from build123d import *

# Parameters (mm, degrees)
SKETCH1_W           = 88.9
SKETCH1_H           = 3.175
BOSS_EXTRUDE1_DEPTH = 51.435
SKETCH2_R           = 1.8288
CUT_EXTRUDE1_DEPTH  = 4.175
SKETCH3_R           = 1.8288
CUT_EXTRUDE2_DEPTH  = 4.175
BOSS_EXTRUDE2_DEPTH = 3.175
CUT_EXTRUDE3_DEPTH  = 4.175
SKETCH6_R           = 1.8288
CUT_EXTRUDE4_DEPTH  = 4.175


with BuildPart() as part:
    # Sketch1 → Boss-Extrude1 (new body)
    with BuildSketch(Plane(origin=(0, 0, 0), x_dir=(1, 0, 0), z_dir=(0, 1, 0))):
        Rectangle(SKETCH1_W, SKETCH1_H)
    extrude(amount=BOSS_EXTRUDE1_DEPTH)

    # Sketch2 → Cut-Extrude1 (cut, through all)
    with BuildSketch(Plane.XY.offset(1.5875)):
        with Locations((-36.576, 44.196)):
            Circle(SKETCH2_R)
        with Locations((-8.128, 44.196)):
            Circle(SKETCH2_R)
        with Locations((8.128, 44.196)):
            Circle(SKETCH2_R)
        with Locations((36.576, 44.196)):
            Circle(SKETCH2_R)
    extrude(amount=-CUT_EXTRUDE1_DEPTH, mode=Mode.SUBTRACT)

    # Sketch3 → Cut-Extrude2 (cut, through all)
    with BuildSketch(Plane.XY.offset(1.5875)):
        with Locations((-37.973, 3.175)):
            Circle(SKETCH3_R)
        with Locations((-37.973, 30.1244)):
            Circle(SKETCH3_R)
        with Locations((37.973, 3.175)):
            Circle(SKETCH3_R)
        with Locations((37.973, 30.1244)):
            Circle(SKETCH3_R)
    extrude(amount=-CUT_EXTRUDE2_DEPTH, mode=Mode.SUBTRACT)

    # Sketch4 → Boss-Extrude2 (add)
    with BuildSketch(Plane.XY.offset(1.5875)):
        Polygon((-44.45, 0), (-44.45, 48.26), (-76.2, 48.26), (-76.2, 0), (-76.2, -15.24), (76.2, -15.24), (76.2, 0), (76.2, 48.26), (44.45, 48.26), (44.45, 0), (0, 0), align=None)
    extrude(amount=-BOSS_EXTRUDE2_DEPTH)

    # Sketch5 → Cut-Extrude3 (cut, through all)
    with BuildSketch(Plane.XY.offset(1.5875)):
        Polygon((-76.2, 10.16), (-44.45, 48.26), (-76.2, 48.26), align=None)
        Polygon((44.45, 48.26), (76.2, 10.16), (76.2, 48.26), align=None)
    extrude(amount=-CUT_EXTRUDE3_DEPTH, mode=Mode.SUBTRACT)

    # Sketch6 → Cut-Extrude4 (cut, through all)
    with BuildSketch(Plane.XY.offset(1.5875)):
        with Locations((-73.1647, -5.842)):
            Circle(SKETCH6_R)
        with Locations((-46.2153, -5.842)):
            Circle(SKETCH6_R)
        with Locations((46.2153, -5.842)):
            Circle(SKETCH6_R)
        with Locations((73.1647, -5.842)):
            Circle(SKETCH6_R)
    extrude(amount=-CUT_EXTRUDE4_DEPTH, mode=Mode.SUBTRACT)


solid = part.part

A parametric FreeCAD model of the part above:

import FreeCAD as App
import Part
import Sketcher
from FreeCAD import Vector
Q = App.Units.Quantity

doc = App.newDocument("Part")
params = doc.addObject("Spreadsheet::Sheet", "Params")
for row, (alias, value) in enumerate([
    ("sketch1_width", "3.5 in"),
    ("sketch1_height", "0.125 in"),
    ("pad1_length", "2.025 in"),
    ("sketch2_diameter", "0.144 in"),
    ("sketch3_diameter", "0.144 in"),
    ("sketch4_width", "6 in"),
    ("sketch4_width2", "3.5 in"),
    ("sketch4_height", "1.9 in"),
    ("sketch4_height2", "2.5 in"),
    ("pad2_length", "0.125 in"),
    ("sketch5_height", "1.5 in"),
    ("sketch5_width", "1.25 in"),
    ("sketch6_diameter", "0.144 in"),
], start=1):
    params.set(f"A{row}", alias)
    params.set(f"B{row}", "=" + value)
    params.setAlias(f"B{row}", alias)

body = doc.addObject("PartDesign::Body", "Body")

# Sketch on XZ plane
sketch1 = doc.addObject("Sketcher::SketchObject", "Sketch")
body.addObject(sketch1)
sketch1.AttachmentSupport = (doc.XZ_Plane, [""])
sketch1.MapMode = "FlatFace"
sketch1.addGeometry(Part.LineSegment(Vector(-44.5, -1.6, 0), Vector(-44.5, 1.6, 0)), False)
sketch1.addGeometry(Part.LineSegment(Vector(-44.5, 1.6, 0), Vector(44.5, 1.6, 0)), False)
sketch1.addGeometry(Part.LineSegment(Vector(44.5, 1.6, 0), Vector(44.5, -1.6, 0)), False)
sketch1.addGeometry(Part.LineSegment(Vector(44.5, -1.6, 0), Vector(-44.5, -1.6, 0)), False)
sketch1.addConstraint(Sketcher.Constraint("Coincident", 0, 2, 1, 1))
sketch1.addConstraint(Sketcher.Constraint("Coincident", 1, 2, 2, 1))
sketch1.addConstraint(Sketcher.Constraint("Coincident", 2, 2, 3, 1))
sketch1.addConstraint(Sketcher.Constraint("Coincident", 3, 2, 0, 1))
sketch1.addConstraint(Sketcher.Constraint("Vertical", 0))
sketch1.addConstraint(Sketcher.Constraint("Horizontal", 1))
sketch1.addConstraint(Sketcher.Constraint("Vertical", 2))
sketch1.addConstraint(Sketcher.Constraint("Horizontal", 3))
sketch1.addConstraint(Sketcher.Constraint("Symmetric", 0, 2, 2, 2, -1, 1))
sketch1.addConstraint(Sketcher.Constraint("DistanceX", 1, 1, 1, 2, Q("3.5 in")))
sketch1.addConstraint(Sketcher.Constraint("DistanceY", 0, 1, 0, 2, Q("0.125 in")))
sketch1.setExpression("Constraints[9]", "Params.sketch1_width")
sketch1.setExpression("Constraints[10]", "Params.sketch1_height")
pad1 = doc.addObject("PartDesign::Pad", "Pad")
body.addObject(pad1)
pad1.Profile = sketch1
pad1.setExpression("Length", "Params.pad1_length")
pad1.Reversed = True

# Sketch on XY plane
sketch2 = doc.addObject("Sketcher::SketchObject", "Sketch001")
body.addObject(sketch2)
sketch2.AttachmentSupport = (doc.XY_Plane, [""])
sketch2.MapMode = "FlatFace"
sketch2.AttachmentOffset = App.Placement(Vector(0, 0, 0.0625 * 25.4), App.Rotation())
sketch2.addGeometry(Part.Circle(Vector(-36.6, 44.2, 0), Vector(0, 0, 1), 1.8), False)
sketch2.addGeometry(Part.Circle(Vector(-8.1, 44.2, 0), Vector(0, 0, 1), 1.8), False)
sketch2.addGeometry(Part.Circle(Vector(8.1, 44.2, 0), Vector(0, 0, 1), 1.8), False)
sketch2.addGeometry(Part.Circle(Vector(36.6, 44.2, 0), Vector(0, 0, 1), 1.8), False)
sketch2.addConstraint(Sketcher.Constraint("Equal", 0, 1))
sketch2.addConstraint(Sketcher.Constraint("Equal", 1, 2))
sketch2.addConstraint(Sketcher.Constraint("Equal", 2, 3))
sketch2.addConstraint(Sketcher.Constraint("Symmetric", 1, 3, 2, 3, -2))
sketch2.addConstraint(Sketcher.Constraint("Symmetric", 0, 3, 3, 3, -2))
sketch2.addConstraint(Sketcher.Constraint("Horizontal", 0, 3, 1, 3))
sketch2.addConstraint(Sketcher.Constraint("Diameter", 0, Q("0.144 in")))
sketch2.addConstraint(Sketcher.Constraint("DistanceX", 0, 3, -1, 1, Q("1.44 in")))
sketch2.addConstraint(Sketcher.Constraint("DistanceY", -1, 1, 0, 3, Q("1.74 in")))
sketch2.addConstraint(Sketcher.Constraint("DistanceX", 1, 3, -1, 1, Q("0.32 in")))
sketch2.setExpression("Constraints[6]", "Params.sketch2_diameter")
pocket1 = doc.addObject("PartDesign::Pocket", "Pocket")
body.addObject(pocket1)
pocket1.Profile = sketch2
pocket1.Type = "ThroughAll"

# Sketch on XY plane
sketch3 = doc.addObject("Sketcher::SketchObject", "Sketch002")
body.addObject(sketch3)
sketch3.AttachmentSupport = (doc.XY_Plane, [""])
sketch3.MapMode = "FlatFace"
sketch3.AttachmentOffset = App.Placement(Vector(0, 0, 0.0625 * 25.4), App.Rotation())
sketch3.addGeometry(Part.Circle(Vector(-38, 3.2, 0), Vector(0, 0, 1), 1.8), False)
sketch3.addGeometry(Part.Circle(Vector(-38, 30.1, 0), Vector(0, 0, 1), 1.8), False)
sketch3.addGeometry(Part.Circle(Vector(38, 3.2, 0), Vector(0, 0, 1), 1.8), False)
sketch3.addGeometry(Part.Circle(Vector(38, 30.1, 0), Vector(0, 0, 1), 1.8), False)
sketch3.addConstraint(Sketcher.Constraint("Equal", 0, 1))
sketch3.addConstraint(Sketcher.Constraint("Equal", 1, 2))
sketch3.addConstraint(Sketcher.Constraint("Equal", 2, 3))
sketch3.addConstraint(Sketcher.Constraint("Symmetric", 0, 3, 2, 3, -2))
sketch3.addConstraint(Sketcher.Constraint("Symmetric", 1, 3, 3, 3, -2))
sketch3.addConstraint(Sketcher.Constraint("Vertical", 0, 3, 1, 3))
sketch3.addConstraint(Sketcher.Constraint("Diameter", 0, Q("0.144 in")))
sketch3.addConstraint(Sketcher.Constraint("DistanceX", 0, 3, 2, 3, Q("2.99 in")))
sketch3.addConstraint(Sketcher.Constraint("DistanceY", -1, 1, 0, 3, Q("0.125 in")))
sketch3.addConstraint(Sketcher.Constraint("DistanceY", -1, 1, 1, 3, Q("1.186 in")))
sketch3.setExpression("Constraints[6]", "Params.sketch3_diameter")
pocket2 = doc.addObject("PartDesign::Pocket", "Pocket001")
body.addObject(pocket2)
pocket2.Profile = sketch3
pocket2.Type = "ThroughAll"

# Sketch on XY plane
sketch4 = doc.addObject("Sketcher::SketchObject", "Sketch003")
body.addObject(sketch4)
sketch4.AttachmentSupport = (doc.XY_Plane, [""])
sketch4.MapMode = "FlatFace"
sketch4.AttachmentOffset = App.Placement(Vector(0, 0, 0.0625 * 25.4), App.Rotation())
sketch4.addGeometry(Part.LineSegment(Vector(-44, 0, 0), Vector(-44, 48, 0)), False)
sketch4.addGeometry(Part.LineSegment(Vector(-44, 48, 0), Vector(-76, 48, 0)), False)
sketch4.addGeometry(Part.LineSegment(Vector(-76, 48, 0), Vector(-76, -15, 0)), False)
sketch4.addGeometry(Part.LineSegment(Vector(-76, -15, 0), Vector(76, -15, 0)), False)
sketch4.addGeometry(Part.LineSegment(Vector(76, -15, 0), Vector(76, 48, 0)), False)
sketch4.addGeometry(Part.LineSegment(Vector(76, 48, 0), Vector(44, 48, 0)), False)
sketch4.addGeometry(Part.LineSegment(Vector(44, 48, 0), Vector(44, 0, 0)), False)
sketch4.addGeometry(Part.LineSegment(Vector(44, 0, 0), Vector(-44, 0, 0)), False)
sketch4.addConstraint(Sketcher.Constraint("Coincident", 0, 2, 1, 1))
sketch4.addConstraint(Sketcher.Constraint("Coincident", 1, 2, 2, 1))
sketch4.addConstraint(Sketcher.Constraint("Coincident", 2, 2, 3, 1))
sketch4.addConstraint(Sketcher.Constraint("Coincident", 3, 2, 4, 1))
sketch4.addConstraint(Sketcher.Constraint("Coincident", 4, 2, 5, 1))
sketch4.addConstraint(Sketcher.Constraint("Coincident", 5, 2, 6, 1))
sketch4.addConstraint(Sketcher.Constraint("Coincident", 6, 2, 7, 1))
sketch4.addConstraint(Sketcher.Constraint("Coincident", 7, 2, 0, 1))
sketch4.addConstraint(Sketcher.Constraint("Vertical", 0))
sketch4.addConstraint(Sketcher.Constraint("Horizontal", 1))
sketch4.addConstraint(Sketcher.Constraint("Vertical", 2))
sketch4.addConstraint(Sketcher.Constraint("Horizontal", 3))
sketch4.addConstraint(Sketcher.Constraint("Vertical", 4))
sketch4.addConstraint(Sketcher.Constraint("Horizontal", 5))
sketch4.addConstraint(Sketcher.Constraint("Vertical", 6))
sketch4.addConstraint(Sketcher.Constraint("Horizontal", 7))
sketch4.addConstraint(Sketcher.Constraint("Symmetric", 6, 2, 7, 2, -1, 1))
sketch4.addConstraint(Sketcher.Constraint("Symmetric", 1, 2, 4, 2, -2))
sketch4.addConstraint(Sketcher.Constraint("DistanceX", 3, 1, 3, 2, Q("6 in")))
sketch4.addConstraint(Sketcher.Constraint("DistanceX", 7, 2, 7, 1, Q("3.5 in")))
sketch4.addConstraint(Sketcher.Constraint("DistanceY", 0, 1, 0, 2, Q("1.9 in")))
sketch4.addConstraint(Sketcher.Constraint("DistanceY", 2, 2, 2, 1, Q("2.5 in")))
sketch4.setExpression("Constraints[18]", "Params.sketch4_width")
sketch4.setExpression("Constraints[19]", "Params.sketch4_width2")
sketch4.setExpression("Constraints[20]", "Params.sketch4_height")
sketch4.setExpression("Constraints[21]", "Params.sketch4_height2")
pad2 = doc.addObject("PartDesign::Pad", "Pad001")
body.addObject(pad2)
pad2.Profile = sketch4
pad2.setExpression("Length", "Params.pad2_length")
pad2.Reversed = True

# Sketch on XY plane
sketch5 = doc.addObject("Sketcher::SketchObject", "Sketch004")
body.addObject(sketch5)
sketch5.AttachmentSupport = (doc.XY_Plane, [""])
sketch5.MapMode = "FlatFace"
sketch5.AttachmentOffset = App.Placement(Vector(0, 0, 0.0625 * 25.4), App.Rotation())
sketch5.addGeometry(Part.LineSegment(Vector(-76, 10, 0), Vector(-44, 48, 0)), False)
sketch5.addGeometry(Part.LineSegment(Vector(-44, 48, 0), Vector(-76, 48, 0)), False)
sketch5.addGeometry(Part.LineSegment(Vector(-76, 48, 0), Vector(-76, 10, 0)), False)
sketch5.addGeometry(Part.LineSegment(Vector(44, 48, 0), Vector(76, 10, 0)), False)
sketch5.addGeometry(Part.LineSegment(Vector(76, 10, 0), Vector(76, 48, 0)), False)
sketch5.addGeometry(Part.LineSegment(Vector(76, 48, 0), Vector(44, 48, 0)), False)
sketch5.addConstraint(Sketcher.Constraint("Coincident", 0, 2, 1, 1))
sketch5.addConstraint(Sketcher.Constraint("Coincident", 1, 2, 2, 1))
sketch5.addConstraint(Sketcher.Constraint("Coincident", 2, 2, 0, 1))
sketch5.addConstraint(Sketcher.Constraint("Coincident", 3, 2, 4, 1))
sketch5.addConstraint(Sketcher.Constraint("Coincident", 4, 2, 5, 1))
sketch5.addConstraint(Sketcher.Constraint("Coincident", 5, 2, 3, 1))
sketch5.addConstraint(Sketcher.Constraint("Horizontal", 1))
sketch5.addConstraint(Sketcher.Constraint("Vertical", 2))
sketch5.addConstraint(Sketcher.Constraint("Vertical", 4))
sketch5.addConstraint(Sketcher.Constraint("Horizontal", 5))
sketch5.addConstraint(Sketcher.Constraint("Symmetric", 2, 2, 3, 2, -2))
sketch5.addConstraint(Sketcher.Constraint("Symmetric", 0, 2, 5, 2, -2))
sketch5.addConstraint(Sketcher.Constraint("DistanceY", 2, 2, 2, 1, Q("1.5 in")))
sketch5.addConstraint(Sketcher.Constraint("DistanceX", 1, 2, -1, 1, Q("3 in")))
sketch5.addConstraint(Sketcher.Constraint("DistanceX", 1, 2, 1, 1, Q("1.25 in")))
sketch5.addConstraint(Sketcher.Constraint("DistanceY", -1, 1, 0, 2, Q("1.9 in")))
sketch5.setExpression("Constraints[12]", "Params.sketch5_height")
sketch5.setExpression("Constraints[14]", "Params.sketch5_width")
pocket3 = doc.addObject("PartDesign::Pocket", "Pocket002")
body.addObject(pocket3)
pocket3.Profile = sketch5
pocket3.Type = "ThroughAll"

# Sketch on XY plane
sketch6 = doc.addObject("Sketcher::SketchObject", "Sketch005")
body.addObject(sketch6)
sketch6.AttachmentSupport = (doc.XY_Plane, [""])
sketch6.MapMode = "FlatFace"
sketch6.AttachmentOffset = App.Placement(Vector(0, 0, 0.0625 * 25.4), App.Rotation())
sketch6.addGeometry(Part.Circle(Vector(-73.2, -5.8, 0), Vector(0, 0, 1), 1.8), False)
sketch6.addGeometry(Part.Circle(Vector(-46.2, -5.8, 0), Vector(0, 0, 1), 1.8), False)
sketch6.addGeometry(Part.Circle(Vector(46.2, -5.8, 0), Vector(0, 0, 1), 1.8), False)
sketch6.addGeometry(Part.Circle(Vector(73.2, -5.8, 0), Vector(0, 0, 1), 1.8), False)
sketch6.addConstraint(Sketcher.Constraint("Equal", 0, 1))
sketch6.addConstraint(Sketcher.Constraint("Equal", 1, 2))
sketch6.addConstraint(Sketcher.Constraint("Equal", 2, 3))
sketch6.addConstraint(Sketcher.Constraint("Symmetric", 1, 3, 2, 3, -2))
sketch6.addConstraint(Sketcher.Constraint("Symmetric", 0, 3, 3, 3, -2))
sketch6.addConstraint(Sketcher.Constraint("Horizontal", 0, 3, 1, 3))
sketch6.addConstraint(Sketcher.Constraint("Diameter", 0, Q("0.144 in")))
sketch6.addConstraint(Sketcher.Constraint("DistanceX", 0, 3, 2, 3, Q("4.7 in")))
sketch6.addConstraint(Sketcher.Constraint("DistanceY", 0, 3, -1, 1, Q("0.23 in")))
sketch6.addConstraint(Sketcher.Constraint("DistanceX", 0, 3, 1, 3, Q("1.061 in")))
sketch6.setExpression("Constraints[6]", "Params.sketch6_diameter")
pocket4 = doc.addObject("PartDesign::Pocket", "Pocket003")
body.addObject(pocket4)
pocket4.Profile = sketch6
pocket4.Type = "ThroughAll"

doc.recompute()
